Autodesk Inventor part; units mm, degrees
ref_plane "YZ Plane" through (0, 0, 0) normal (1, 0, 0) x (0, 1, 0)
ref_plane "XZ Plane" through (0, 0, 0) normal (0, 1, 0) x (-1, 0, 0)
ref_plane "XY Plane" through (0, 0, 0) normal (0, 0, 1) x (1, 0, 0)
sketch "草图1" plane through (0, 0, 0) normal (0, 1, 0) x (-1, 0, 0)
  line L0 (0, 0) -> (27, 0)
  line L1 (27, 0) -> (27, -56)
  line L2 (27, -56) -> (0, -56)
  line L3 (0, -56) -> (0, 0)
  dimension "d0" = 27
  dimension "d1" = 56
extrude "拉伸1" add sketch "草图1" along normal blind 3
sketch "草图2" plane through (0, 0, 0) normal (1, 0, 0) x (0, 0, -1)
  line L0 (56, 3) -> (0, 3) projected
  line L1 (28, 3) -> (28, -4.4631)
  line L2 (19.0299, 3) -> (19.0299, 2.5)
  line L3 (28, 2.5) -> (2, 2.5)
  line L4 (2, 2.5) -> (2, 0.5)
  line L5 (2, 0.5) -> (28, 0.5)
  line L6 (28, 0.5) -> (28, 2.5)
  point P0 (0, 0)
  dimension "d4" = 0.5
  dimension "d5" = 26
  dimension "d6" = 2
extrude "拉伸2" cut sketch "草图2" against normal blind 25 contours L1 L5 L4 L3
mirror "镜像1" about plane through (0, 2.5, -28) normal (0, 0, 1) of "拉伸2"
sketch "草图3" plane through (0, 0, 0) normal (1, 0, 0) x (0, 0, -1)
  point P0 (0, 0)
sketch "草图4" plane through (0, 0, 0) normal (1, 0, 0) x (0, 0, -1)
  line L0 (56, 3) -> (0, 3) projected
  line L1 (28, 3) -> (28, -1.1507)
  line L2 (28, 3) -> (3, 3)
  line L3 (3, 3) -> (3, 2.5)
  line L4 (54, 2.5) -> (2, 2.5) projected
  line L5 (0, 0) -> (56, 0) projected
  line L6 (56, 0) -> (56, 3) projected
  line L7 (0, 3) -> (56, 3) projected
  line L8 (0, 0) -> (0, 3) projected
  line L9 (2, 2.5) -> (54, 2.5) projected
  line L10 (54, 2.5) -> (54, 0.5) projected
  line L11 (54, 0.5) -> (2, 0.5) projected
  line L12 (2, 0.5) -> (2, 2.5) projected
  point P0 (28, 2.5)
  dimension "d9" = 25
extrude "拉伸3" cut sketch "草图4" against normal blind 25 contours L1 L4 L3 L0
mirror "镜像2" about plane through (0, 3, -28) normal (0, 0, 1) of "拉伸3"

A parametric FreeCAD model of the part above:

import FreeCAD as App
import Part
import Sketcher

doc = App.newDocument("Part")
body = doc.addObject("PartDesign::Body", "Body")

sketch1 = doc.addObject("Sketcher::SketchObject", "Sketch")
body.addObject(sketch1)
sketch1.AttachmentSupport = (doc.XZ_Plane, [""])
sketch1.MapMode = "FlatFace"
sketch1.addGeometry([
    Part.LineSegment(App.Vector(-27, 0, 0), App.Vector(0, 0, 0)),
    Part.LineSegment(App.Vector(0, 0, 0), App.Vector(0, -56, 0)),
    Part.LineSegment(App.Vector(0, -56, 0), App.Vector(-27, -56, 0)),
    Part.LineSegment(App.Vector(-27, -56, 0), App.Vector(-27, 0, 0)),
], False)
sketch1.addConstraint([
    Sketcher.Constraint("Coincident", 0, 2, 1, 1),
    Sketcher.Constraint("Coincident", 1, 2, 2, 1),
    Sketcher.Constraint("Coincident", 2, 2, 3, 1),
    Sketcher.Constraint("Coincident", 3, 2, 0, 1),
    Sketcher.Constraint("Horizontal", 0),
    Sketcher.Constraint("Vertical", 1),
    Sketcher.Constraint("Horizontal", 2),
    Sketcher.Constraint("Vertical", 3),
    Sketcher.Constraint("Coincident", 0, 2, -1, 1),
    Sketcher.Constraint("DistanceX", 0, 1, 0, 2, 27.0),
    Sketcher.Constraint("DistanceY", 1, 2, 1, 1, 56.0),
])
pad1 = doc.addObject("PartDesign::Pad", "Pad")
body.addObject(pad1)
pad1.Profile = sketch1
pad1.Length = 3
pad1.Reversed = True

sketch2 = doc.addObject("Sketcher::SketchObject", "Sketch001")
body.addObject(sketch2)
sketch2.AttachmentSupport = (doc.YZ_Plane, [""])
sketch2.MapMode = "FlatFace"
sketch2.addGeometry([
    Part.LineSegment(App.Vector(0.5, -28, 0), App.Vector(2.5, -28, 0)),
    Part.LineSegment(App.Vector(2.5, -28, 0), App.Vector(2.5, -2, 0)),
    Part.LineSegment(App.Vector(2.5, -2, 0), App.Vector(0.5, -2, 0)),
    Part.LineSegment(App.Vector(0.5, -2, 0), App.Vector(0.5, -28, 0)),
], False)
sketch2.addConstraint([
    Sketcher.Constraint("Coincident", 0, 2, 1, 1),
    Sketcher.Constraint("Coincident", 1, 2, 2, 1),
    Sketcher.Constraint("Coincident", 2, 2, 3, 1),
    Sketcher.Constraint("Coincident", 3, 2, 0, 1),
    Sketcher.Constraint("Horizontal", 0),
    Sketcher.Constraint("Vertical", 1),
    Sketcher.Constraint("Horizontal", 2),
    Sketcher.Constraint("Vertical", 3),
    Sketcher.Constraint("DistanceX", 0, 1, 0, 2, 2.0),
    Sketcher.Constraint("DistanceY", 1, 1, 1, 2, 26.0),
    Sketcher.Constraint("DistanceY", 1, 2, -1, 1, 2.0),
    Sketcher.Constraint("DistanceX", -1, 1, 2, 2, 0.5),
])
pocket1 = doc.addObject("PartDesign::Pocket", "Pocket")
body.addObject(pocket1)
pocket1.Profile = sketch2
pocket1.Length = 25
doc.recompute()

datumplane = doc.addObject("PartDesign::Plane", "DatumPlane")
body.addObject(datumplane)
datumplane.AttachmentSupport = (doc.XY_Plane, [""])
datumplane.MapMode = "FlatFace"
datumplane.AttachmentOffset = App.Placement(App.Vector(0, 0, -28), App.Rotation())
mirrored = doc.addObject("PartDesign::Mirrored", "Mirrored")
body.addObject(mirrored)
mirrored.Originals = [pocket1]
mirrored.MirrorPlane = (datumplane, [""])
body.Tip = mirrored

sketch3 = doc.addObject("Sketcher::SketchObject", "Sketch002")
body.addObject(sketch3)
sketch3.AttachmentSupport = (doc.YZ_Plane, [""])
sketch3.MapMode = "FlatFace"
sketch3.addGeometry([
    Part.LineSegment(App.Vector(2.5, -28, 0), App.Vector(3, -28, 0)),
    Part.LineSegment(App.Vector(3, -28, 0), App.Vector(3, -3, 0)),
    Part.LineSegment(App.Vector(3, -3, 0), App.Vector(2.5, -3, 0)),
    Part.LineSegment(App.Vector(2.5, -3, 0), App.Vector(2.5, -28, 0)),
], False)
sketch3.addConstraint([
    Sketcher.Constraint("Coincident", 0, 2, 1, 1),
    Sketcher.Constraint("Coincident", 1, 2, 2, 1),
    Sketcher.Constraint("Coincident", 2, 2, 3, 1),
    Sketcher.Constraint("Coincident", 3, 2, 0, 1),
    Sketcher.Constraint("Horizontal", 0),
    Sketcher.Constraint("Vertical", 1),
    Sketcher.Constraint("Horizontal", 2),
    Sketcher.Constraint("Vertical", 3),
    Sketcher.Constraint("DistanceY", 1, 1, 1, 2, 25.0),
    Sketcher.Constraint("DistanceX", 0, 1, 0, 2, 0.5),
    Sketcher.Constraint("DistanceX", -1, 1, 0, 2, 3.0),
    Sketcher.Constraint("DistanceY", 0, 2, -1, 1, 28.0),
])
pocket2 = doc.addObject("PartDesign::Pocket", "Pocket001")
body.addObject(pocket2)
pocket2.Profile = sketch3
pocket2.Length = 25
doc.recompute()

datumplane2 = doc.addObject("PartDesign::Plane", "DatumPlane001")
body.addObject(datumplane2)
datumplane2.AttachmentSupport = (doc.XY_Plane, [""])
datumplane2.MapMode = "FlatFace"
datumplane2.AttachmentOffset = App.Placement(App.Vector(0, 0, -28), App.Rotation())
mirrored2 = doc.addObject("PartDesign::Mirrored", "Mirrored001")
body.addObject(mirrored2)
mirrored2.Originals = [pocket2]
mirrored2.MirrorPlane = (datumplane2, [""])
body.Tip = mirrored2

doc.recompute()
